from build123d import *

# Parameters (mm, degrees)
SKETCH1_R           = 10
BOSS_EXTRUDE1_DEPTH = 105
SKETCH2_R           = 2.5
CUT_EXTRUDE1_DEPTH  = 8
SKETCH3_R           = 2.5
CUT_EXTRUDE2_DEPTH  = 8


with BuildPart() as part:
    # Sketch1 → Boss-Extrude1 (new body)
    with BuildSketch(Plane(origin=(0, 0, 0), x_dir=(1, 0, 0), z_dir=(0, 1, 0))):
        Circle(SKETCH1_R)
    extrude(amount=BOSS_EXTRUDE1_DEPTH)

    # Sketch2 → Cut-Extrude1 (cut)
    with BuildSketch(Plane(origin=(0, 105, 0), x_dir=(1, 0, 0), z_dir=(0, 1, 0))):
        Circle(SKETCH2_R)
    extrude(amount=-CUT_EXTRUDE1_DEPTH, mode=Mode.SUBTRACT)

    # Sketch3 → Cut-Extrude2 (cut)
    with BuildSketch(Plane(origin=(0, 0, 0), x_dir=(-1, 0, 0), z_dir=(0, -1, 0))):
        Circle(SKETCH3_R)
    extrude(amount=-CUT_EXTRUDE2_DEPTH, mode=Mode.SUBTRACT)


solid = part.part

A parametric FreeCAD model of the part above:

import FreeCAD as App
import Part
import Sketcher

V = App.Vector

doc = App.newDocument("Part")
body = doc.addObject("PartDesign::Body", "Body")

# Sketch on XZ plane
sketch1 = body.newObject("Sketcher::SketchObject", "Sketch")
sketch1.AttachmentSupport = (doc.getObject("XZ_Plane"), [""])
sketch1.MapMode = "FlatFace"
sketch1.addGeometry(Part.Circle(V(0, 0, 0), V(0, 0, 1), 10), False)
sketch1.addConstraint(Sketcher.Constraint("Coincident", 0, 3, -1, 1))
sketch1.addConstraint(Sketcher.Constraint("Diameter", 0, 20.0))
pad1 = body.newObject("PartDesign::Pad", "Pad")
pad1.Profile = sketch1
pad1.Length = 105
pad1.Reversed = True

# Sketch on XZ plane
sketch2 = body.newObject("Sketcher::SketchObject", "Sketch001")
sketch2.AttachmentSupport = (doc.getObject("XZ_Plane"), [""])
sketch2.MapMode = "FlatFace"
sketch2.AttachmentOffset = App.Placement(V(0, 0, -105), App.Rotation())
sketch2.addGeometry(Part.Circle(V(0, 0, 0), V(0, 0, 1), 2.5), False)
sketch2.addConstraint(Sketcher.Constraint("Coincident", 0, 3, -1, 1))
sketch2.addConstraint(Sketcher.Constraint("Diameter", 0, 5.0))
pocket1 = body.newObject("PartDesign::Pocket", "Pocket")
pocket1.Profile = sketch2
pocket1.Length = 8
pocket1.Reversed = True

# Sketch on XZ plane
sketch3 = body.newObject("Sketcher::SketchObject", "Sketch002")
sketch3.AttachmentSupport = (doc.getObject("XZ_Plane"), [""])
sketch3.MapMode = "FlatFace"
sketch3.addGeometry(Part.Circle(V(0, 0, 0), V(0, 0, 1), 2.5), False)
sketch3.addConstraint(Sketcher.Constraint("Coincident", 0, 3, -1, 1))
sketch3.addConstraint(Sketcher.Constraint("Diameter", 0, 5.0))
pocket2 = body.newObject("PartDesign::Pocket", "Pocket001")
pocket2.Profile = sketch3
pocket2.Length = 8

doc.recompute()
